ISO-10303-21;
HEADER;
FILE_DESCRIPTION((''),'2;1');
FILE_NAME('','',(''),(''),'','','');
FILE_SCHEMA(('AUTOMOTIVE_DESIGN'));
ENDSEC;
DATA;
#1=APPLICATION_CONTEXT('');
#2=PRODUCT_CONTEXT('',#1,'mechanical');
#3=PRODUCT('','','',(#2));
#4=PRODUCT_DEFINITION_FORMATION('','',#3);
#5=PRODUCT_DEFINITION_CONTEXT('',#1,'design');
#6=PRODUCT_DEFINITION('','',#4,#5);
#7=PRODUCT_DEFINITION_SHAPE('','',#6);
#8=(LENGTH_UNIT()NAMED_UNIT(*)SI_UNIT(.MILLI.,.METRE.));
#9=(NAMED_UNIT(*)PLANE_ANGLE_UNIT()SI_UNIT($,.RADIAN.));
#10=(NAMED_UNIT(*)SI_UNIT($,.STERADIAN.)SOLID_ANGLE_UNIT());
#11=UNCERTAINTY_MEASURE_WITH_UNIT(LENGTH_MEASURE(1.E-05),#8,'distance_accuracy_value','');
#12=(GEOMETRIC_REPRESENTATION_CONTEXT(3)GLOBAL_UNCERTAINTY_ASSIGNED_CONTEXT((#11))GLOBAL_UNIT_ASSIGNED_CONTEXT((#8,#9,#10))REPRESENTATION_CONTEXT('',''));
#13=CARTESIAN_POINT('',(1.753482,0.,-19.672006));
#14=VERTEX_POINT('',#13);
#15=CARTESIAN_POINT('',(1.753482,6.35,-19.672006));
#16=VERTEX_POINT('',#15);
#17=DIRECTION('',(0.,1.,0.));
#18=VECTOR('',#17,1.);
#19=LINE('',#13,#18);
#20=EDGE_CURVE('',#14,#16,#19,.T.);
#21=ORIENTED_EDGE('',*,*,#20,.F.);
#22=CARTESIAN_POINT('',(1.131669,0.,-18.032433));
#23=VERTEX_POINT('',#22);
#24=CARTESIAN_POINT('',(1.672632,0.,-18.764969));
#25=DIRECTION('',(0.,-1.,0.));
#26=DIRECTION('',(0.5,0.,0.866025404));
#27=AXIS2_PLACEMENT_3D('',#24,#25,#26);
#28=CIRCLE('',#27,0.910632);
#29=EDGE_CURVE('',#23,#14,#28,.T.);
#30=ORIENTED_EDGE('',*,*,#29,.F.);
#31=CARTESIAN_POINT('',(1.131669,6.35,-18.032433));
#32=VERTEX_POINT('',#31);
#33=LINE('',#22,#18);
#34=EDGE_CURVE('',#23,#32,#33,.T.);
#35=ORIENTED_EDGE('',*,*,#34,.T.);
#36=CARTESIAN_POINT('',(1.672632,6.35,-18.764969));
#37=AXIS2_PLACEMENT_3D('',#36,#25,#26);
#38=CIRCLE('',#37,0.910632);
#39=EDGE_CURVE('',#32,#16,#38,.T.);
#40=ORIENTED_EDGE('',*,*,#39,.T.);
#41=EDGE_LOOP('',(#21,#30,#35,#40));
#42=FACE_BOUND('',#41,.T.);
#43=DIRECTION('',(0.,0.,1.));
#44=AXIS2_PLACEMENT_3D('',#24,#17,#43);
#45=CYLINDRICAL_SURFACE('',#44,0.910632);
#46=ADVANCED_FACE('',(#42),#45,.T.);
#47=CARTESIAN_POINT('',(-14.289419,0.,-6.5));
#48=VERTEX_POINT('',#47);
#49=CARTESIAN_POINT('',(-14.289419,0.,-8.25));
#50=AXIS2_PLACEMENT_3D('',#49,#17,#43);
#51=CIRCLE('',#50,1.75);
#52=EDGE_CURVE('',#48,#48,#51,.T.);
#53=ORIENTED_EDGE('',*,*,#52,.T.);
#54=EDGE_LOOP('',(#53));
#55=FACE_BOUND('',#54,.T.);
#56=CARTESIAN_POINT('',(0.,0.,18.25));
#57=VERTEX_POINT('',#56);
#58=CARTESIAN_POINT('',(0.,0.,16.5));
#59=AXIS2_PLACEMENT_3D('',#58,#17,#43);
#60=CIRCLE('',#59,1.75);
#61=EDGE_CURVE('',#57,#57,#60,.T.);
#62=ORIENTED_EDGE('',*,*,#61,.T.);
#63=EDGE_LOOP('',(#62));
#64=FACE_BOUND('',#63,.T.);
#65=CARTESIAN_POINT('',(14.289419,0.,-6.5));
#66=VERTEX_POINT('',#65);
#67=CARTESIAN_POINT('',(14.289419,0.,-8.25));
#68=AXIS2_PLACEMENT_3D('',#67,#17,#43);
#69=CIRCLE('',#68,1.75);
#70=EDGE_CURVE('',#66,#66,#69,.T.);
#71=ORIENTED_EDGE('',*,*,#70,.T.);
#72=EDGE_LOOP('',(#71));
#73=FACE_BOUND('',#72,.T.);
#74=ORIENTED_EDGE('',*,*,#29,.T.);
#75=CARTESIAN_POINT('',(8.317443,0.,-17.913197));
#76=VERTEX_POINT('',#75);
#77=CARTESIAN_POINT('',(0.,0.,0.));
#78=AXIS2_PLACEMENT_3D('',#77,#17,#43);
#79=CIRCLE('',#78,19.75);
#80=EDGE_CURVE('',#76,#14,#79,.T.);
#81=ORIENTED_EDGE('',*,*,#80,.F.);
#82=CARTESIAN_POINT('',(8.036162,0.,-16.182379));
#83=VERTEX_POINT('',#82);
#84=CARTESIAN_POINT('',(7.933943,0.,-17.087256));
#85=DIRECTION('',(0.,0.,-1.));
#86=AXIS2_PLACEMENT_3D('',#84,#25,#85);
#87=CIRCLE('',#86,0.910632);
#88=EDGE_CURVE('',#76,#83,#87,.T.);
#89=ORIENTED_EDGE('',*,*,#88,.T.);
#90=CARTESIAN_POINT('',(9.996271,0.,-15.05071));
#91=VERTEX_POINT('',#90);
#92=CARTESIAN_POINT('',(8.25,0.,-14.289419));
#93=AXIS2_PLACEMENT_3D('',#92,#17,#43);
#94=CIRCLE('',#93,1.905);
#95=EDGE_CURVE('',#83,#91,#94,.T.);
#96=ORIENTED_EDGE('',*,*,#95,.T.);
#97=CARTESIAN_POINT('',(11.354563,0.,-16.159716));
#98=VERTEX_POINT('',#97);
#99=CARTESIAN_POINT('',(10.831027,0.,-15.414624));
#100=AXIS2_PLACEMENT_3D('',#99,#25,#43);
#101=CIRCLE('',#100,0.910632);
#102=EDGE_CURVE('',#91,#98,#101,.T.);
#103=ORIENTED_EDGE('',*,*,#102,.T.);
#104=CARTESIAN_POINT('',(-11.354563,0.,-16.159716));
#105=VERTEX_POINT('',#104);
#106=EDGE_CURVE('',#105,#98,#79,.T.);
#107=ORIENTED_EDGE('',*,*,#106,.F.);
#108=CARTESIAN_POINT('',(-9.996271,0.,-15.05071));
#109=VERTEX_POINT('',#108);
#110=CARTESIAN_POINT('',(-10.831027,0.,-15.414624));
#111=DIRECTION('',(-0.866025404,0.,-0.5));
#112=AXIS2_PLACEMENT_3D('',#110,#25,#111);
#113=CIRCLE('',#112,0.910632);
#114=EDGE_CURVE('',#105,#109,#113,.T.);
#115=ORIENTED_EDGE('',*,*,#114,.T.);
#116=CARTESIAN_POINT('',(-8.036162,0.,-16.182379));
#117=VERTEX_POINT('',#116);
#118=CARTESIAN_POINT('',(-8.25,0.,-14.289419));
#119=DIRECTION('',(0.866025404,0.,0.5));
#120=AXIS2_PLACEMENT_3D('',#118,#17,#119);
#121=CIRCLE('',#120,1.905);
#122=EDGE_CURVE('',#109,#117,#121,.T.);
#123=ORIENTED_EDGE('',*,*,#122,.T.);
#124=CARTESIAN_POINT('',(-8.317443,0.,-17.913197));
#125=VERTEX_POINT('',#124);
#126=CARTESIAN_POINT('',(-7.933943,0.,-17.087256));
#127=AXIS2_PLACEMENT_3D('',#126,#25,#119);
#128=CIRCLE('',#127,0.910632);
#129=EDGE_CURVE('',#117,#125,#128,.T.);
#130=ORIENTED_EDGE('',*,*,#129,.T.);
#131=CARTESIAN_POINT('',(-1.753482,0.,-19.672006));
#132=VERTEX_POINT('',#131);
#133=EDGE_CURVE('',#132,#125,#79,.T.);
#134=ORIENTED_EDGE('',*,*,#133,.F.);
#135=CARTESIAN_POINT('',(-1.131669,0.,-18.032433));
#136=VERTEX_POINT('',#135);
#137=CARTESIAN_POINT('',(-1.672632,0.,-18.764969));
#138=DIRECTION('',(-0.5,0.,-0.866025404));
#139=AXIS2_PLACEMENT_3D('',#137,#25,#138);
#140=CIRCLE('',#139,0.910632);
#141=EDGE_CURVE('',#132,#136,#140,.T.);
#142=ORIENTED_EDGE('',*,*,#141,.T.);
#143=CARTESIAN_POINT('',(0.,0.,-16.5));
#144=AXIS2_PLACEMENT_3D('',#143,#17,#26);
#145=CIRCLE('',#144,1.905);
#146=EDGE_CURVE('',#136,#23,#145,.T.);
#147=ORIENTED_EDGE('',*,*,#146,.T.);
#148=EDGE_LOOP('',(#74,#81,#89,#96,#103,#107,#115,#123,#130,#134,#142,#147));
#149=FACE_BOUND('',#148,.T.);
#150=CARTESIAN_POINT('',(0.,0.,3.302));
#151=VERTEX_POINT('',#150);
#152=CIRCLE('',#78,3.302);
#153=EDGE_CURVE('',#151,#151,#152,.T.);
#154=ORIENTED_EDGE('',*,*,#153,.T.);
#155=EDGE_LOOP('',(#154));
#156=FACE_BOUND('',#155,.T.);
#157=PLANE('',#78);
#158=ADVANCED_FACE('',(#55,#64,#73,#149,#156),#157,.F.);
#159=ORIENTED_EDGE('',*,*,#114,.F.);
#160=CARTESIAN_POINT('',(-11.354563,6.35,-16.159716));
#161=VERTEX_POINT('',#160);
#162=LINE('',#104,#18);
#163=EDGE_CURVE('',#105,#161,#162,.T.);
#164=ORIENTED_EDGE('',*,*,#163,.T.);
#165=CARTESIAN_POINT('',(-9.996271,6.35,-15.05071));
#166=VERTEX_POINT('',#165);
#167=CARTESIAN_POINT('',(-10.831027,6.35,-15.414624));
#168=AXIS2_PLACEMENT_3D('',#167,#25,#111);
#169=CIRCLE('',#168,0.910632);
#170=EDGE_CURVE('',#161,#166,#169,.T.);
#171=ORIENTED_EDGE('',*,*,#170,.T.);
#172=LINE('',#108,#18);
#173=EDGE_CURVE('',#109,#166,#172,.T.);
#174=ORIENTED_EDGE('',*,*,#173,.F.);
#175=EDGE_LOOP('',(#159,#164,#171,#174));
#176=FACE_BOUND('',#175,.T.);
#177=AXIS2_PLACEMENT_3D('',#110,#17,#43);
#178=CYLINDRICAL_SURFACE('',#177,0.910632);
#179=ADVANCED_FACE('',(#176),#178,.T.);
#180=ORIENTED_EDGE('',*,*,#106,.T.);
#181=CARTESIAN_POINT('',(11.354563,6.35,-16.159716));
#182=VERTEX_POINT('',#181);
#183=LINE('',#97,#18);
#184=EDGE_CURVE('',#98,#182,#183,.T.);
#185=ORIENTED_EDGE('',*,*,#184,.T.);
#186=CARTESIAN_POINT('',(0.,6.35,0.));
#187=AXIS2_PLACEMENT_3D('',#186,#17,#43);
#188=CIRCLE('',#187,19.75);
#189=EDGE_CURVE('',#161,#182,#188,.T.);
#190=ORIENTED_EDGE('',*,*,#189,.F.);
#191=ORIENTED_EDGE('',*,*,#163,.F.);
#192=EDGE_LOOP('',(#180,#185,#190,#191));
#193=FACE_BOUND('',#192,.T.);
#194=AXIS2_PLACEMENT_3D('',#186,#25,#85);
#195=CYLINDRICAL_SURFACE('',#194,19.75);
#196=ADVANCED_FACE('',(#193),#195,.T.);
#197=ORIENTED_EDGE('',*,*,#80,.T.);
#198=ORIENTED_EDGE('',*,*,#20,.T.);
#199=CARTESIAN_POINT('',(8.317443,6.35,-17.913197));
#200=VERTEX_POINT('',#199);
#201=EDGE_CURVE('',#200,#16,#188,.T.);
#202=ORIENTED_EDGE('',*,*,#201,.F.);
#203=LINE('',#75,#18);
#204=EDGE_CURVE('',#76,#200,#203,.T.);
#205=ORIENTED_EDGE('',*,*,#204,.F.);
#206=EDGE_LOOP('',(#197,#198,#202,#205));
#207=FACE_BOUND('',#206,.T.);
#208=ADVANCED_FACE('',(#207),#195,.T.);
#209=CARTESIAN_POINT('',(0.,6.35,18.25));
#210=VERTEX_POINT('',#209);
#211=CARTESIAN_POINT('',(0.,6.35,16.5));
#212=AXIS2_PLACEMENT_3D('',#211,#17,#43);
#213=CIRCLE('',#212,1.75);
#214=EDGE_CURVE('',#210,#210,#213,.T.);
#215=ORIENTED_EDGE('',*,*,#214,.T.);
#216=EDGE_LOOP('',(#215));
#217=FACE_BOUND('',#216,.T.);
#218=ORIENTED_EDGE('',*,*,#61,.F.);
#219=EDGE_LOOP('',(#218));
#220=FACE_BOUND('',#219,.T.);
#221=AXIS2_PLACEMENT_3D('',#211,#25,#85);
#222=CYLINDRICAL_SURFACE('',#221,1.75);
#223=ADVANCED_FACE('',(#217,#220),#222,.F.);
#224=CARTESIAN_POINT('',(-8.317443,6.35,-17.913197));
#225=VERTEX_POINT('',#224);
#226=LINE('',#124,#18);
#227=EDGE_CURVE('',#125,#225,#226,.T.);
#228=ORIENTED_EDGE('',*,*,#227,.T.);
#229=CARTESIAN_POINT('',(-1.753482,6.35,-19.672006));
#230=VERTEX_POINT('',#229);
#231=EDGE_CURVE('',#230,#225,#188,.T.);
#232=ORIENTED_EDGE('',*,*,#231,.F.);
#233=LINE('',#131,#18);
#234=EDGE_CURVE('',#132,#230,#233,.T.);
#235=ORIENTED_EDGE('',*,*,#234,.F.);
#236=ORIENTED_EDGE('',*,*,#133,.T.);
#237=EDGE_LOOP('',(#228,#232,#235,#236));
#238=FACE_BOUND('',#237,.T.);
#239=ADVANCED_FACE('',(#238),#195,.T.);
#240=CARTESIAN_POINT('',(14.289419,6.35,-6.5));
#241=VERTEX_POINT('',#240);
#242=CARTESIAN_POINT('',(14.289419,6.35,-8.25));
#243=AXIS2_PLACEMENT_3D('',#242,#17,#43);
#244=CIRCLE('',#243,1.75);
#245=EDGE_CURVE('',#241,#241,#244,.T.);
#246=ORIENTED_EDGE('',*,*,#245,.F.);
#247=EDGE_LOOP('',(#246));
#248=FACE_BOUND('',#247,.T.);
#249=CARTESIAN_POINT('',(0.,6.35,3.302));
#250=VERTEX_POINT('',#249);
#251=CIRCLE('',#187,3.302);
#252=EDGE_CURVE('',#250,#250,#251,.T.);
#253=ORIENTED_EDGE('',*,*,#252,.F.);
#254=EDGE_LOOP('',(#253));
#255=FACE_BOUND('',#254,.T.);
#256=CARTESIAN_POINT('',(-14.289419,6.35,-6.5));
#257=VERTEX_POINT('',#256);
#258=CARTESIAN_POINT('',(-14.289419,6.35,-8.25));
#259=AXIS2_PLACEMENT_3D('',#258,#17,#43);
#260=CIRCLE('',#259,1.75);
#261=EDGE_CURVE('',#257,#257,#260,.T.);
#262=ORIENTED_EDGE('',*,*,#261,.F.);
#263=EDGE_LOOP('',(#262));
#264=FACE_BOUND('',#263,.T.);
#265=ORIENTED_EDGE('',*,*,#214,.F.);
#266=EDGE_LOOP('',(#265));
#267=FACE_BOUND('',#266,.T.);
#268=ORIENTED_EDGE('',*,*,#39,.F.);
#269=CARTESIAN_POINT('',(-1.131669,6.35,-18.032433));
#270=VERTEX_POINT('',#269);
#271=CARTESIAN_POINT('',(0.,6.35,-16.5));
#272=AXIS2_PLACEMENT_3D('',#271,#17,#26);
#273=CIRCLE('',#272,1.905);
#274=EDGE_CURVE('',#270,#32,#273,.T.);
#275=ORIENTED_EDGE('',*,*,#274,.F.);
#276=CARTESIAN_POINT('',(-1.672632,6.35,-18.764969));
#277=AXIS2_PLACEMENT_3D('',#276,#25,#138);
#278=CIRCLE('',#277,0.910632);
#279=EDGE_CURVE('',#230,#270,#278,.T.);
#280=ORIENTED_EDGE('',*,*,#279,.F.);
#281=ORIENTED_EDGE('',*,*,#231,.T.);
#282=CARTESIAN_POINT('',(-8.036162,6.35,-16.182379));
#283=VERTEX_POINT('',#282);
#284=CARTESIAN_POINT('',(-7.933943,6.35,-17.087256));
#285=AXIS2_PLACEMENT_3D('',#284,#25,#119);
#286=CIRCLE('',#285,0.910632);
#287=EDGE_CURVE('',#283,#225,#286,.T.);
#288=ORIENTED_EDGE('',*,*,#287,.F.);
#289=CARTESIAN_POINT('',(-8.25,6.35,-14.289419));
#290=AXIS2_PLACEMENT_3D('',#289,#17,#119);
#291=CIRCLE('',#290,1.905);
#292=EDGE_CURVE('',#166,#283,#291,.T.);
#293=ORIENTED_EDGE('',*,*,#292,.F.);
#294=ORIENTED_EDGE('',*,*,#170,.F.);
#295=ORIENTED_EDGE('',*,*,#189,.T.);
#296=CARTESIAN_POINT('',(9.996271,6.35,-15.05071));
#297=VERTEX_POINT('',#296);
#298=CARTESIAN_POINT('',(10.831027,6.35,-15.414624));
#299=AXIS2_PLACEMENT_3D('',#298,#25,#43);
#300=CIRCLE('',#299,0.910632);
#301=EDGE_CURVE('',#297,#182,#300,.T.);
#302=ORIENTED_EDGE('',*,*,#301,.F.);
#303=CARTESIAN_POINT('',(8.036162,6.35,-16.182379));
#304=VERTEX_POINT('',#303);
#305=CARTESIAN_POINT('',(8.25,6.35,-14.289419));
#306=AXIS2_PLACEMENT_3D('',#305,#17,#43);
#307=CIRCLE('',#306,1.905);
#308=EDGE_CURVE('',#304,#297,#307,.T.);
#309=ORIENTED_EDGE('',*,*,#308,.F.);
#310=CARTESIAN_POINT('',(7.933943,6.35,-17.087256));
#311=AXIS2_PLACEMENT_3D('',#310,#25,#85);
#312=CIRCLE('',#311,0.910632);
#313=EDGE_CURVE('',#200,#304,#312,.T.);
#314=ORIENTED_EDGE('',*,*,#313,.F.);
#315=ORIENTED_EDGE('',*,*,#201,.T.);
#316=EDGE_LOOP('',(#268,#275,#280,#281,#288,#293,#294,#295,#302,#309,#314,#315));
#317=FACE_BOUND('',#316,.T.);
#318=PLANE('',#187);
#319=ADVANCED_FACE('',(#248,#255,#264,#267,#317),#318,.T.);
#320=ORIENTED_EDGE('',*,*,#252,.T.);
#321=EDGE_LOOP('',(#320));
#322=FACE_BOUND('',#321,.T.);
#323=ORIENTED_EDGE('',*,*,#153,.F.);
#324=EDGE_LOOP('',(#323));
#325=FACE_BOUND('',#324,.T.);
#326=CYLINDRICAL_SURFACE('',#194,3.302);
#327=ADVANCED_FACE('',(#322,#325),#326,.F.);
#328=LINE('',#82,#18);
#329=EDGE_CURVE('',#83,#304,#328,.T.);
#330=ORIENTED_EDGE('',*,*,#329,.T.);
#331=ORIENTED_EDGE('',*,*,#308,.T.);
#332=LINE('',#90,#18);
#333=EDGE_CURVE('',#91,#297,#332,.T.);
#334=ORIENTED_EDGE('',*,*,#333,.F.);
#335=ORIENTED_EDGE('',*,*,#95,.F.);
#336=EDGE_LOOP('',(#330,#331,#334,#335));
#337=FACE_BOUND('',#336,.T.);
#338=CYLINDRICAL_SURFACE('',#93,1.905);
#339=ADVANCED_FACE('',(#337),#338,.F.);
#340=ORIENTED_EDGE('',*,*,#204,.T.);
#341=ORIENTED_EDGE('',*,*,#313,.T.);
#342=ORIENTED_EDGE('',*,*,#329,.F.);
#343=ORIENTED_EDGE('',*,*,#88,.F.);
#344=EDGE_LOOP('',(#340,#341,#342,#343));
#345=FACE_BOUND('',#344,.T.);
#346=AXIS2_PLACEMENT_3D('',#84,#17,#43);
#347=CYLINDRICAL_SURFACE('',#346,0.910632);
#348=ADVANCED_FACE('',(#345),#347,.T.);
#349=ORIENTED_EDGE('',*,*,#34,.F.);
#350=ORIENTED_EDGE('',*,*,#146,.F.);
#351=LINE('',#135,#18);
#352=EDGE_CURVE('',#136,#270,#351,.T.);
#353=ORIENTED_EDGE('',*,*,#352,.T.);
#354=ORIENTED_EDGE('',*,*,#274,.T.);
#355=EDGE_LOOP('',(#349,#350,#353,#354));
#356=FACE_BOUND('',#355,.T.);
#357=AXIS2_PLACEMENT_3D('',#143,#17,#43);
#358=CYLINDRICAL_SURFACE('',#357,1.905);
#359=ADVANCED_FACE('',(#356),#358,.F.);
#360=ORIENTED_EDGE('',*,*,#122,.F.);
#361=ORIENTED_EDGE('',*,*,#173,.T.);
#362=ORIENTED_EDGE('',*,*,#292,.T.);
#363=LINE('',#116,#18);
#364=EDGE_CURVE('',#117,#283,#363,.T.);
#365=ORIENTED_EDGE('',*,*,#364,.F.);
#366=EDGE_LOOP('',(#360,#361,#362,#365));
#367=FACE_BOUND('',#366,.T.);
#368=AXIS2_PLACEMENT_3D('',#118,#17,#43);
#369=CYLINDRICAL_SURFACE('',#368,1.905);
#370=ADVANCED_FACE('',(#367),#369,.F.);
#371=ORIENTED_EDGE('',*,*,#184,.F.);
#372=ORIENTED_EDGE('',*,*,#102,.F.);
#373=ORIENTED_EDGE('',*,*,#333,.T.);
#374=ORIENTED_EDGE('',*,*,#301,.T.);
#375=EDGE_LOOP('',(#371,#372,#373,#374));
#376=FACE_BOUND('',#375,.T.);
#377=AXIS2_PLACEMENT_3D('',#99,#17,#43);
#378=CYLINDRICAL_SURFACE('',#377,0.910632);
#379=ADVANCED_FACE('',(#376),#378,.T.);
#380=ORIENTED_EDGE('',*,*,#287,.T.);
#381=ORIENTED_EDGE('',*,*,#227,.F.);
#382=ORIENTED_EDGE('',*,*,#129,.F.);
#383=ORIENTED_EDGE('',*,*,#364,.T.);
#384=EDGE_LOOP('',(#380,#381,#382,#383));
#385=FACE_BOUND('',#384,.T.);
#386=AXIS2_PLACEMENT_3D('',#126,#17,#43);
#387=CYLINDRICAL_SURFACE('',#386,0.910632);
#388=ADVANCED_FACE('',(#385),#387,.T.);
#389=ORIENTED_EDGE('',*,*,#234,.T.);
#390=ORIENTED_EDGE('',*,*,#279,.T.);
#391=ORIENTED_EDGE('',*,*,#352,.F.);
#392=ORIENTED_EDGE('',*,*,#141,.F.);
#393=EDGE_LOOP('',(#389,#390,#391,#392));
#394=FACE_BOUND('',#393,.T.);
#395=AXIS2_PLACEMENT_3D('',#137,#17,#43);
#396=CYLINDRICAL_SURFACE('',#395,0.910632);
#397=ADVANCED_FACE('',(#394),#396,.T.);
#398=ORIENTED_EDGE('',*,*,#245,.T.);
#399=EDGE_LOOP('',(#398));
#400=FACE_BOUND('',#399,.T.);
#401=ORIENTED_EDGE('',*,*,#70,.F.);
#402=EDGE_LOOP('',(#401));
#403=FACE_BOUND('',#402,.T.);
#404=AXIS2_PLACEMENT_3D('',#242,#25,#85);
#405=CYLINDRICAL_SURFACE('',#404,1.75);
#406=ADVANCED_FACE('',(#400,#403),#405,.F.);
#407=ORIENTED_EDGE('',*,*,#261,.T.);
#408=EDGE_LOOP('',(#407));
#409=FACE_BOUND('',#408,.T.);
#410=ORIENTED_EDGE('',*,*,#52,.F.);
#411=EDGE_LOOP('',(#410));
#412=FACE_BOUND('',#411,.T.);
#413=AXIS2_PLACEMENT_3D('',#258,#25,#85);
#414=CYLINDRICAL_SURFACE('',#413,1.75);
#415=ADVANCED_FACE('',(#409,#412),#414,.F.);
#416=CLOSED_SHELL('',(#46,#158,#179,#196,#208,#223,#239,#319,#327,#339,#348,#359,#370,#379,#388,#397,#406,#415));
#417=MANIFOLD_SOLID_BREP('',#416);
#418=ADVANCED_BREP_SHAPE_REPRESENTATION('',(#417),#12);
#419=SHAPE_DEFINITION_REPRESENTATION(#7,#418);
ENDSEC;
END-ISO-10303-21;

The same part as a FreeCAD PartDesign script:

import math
import FreeCAD as App
import Part
import Sketcher
Q = App.Units.Quantity

doc = App.newDocument("Part")
body = doc.addObject("PartDesign::Body", "Body")

sketch1 = doc.addObject("Sketcher::SketchObject", "Sketch")
body.addObject(sketch1)
sketch1.AttachmentSupport = (doc.XZ_Plane, [""])
sketch1.MapMode = "FlatFace"
sketch1.addGeometry([
    Part.Circle(App.Vector(0, 0, 0), App.Vector(0, 0, 1), 19.8),
    Part.Circle(App.Vector(-14.3, -8.2, 0), App.Vector(0, 0, 1), 1.8),
    Part.Circle(App.Vector(0, 0, 0), App.Vector(0, 0, 1), 3.3),
    Part.Circle(App.Vector(14.3, -8.2, 0), App.Vector(0, 0, 1), 1.8),
    Part.Circle(App.Vector(0, 16.5, 0), App.Vector(0, 0, 1), 1.8),
], False)
sketch1.addConstraint([
    Sketcher.Constraint("Coincident", 0, 3, -1, 1),
    Sketcher.Constraint("Coincident", 2, 3, -1, 1),
    Sketcher.Constraint("Equal", 1, 3),
    Sketcher.Constraint("Equal", 3, 4),
    Sketcher.Constraint("Symmetric", 1, 3, 3, 3, -2),
    Sketcher.Constraint("PointOnObject", 4, 3, -2),
    Sketcher.Constraint("Diameter", 2, Q("0.26 in")),
    Sketcher.Constraint("Diameter", 0, Q("39.5 mm")),
    Sketcher.Constraint("Diameter", 1, Q("3.5 mm")),
    Sketcher.Constraint("DistanceY", 1, 3, -1, 1, Q("8.25 mm")),
    Sketcher.Constraint("DistanceY", -1, 1, 4, 3, Q("16.5 mm")),
    Sketcher.Constraint("DistanceX", 1, 3, -1, 1, Q("14.289419 mm")),
])
pad1 = doc.addObject("PartDesign::Pad", "Pad")
body.addObject(pad1)
pad1.Profile = sketch1
pad1.Length = Q("0.25 in")
pad1.Reversed = True

sketch2 = doc.addObject("Sketcher::SketchObject", "Sketch001")
body.addObject(sketch2)
sketch2.AttachmentSupport = (doc.XZ_Plane, [""])
sketch2.MapMode = "FlatFace"
sketch2.AttachmentOffset = App.Placement(App.Vector(0, 0, -0.25 * 25.4), App.Rotation())
sketch2.addGeometry([
    Part.ArcOfCircle(Part.Circle(App.Vector(8.2, -14.3, 0), App.Vector(0, 0, 1), 1.9), math.radians(-24), math.radians(264)),
    Part.ArcOfCircle(Part.Circle(App.Vector(10.8, -15.4, 0), App.Vector(0, 0, 1), 0.9), math.radians(156), math.radians(305)),
    Part.ArcOfCircle(Part.Circle(App.Vector(0, 0, 0), App.Vector(0, 0, 1), 19.7), math.radians(-65.09), math.radians(-54.91)),
    Part.ArcOfCircle(Part.Circle(App.Vector(7.9, -17.1, 0), App.Vector(0, 0, 1), 0.9), math.radians(-65), math.radians(84)),
], False)
sketch2.addConstraint([
    Sketcher.Constraint("Tangent", 0, 1, 1, 1),
    Sketcher.Constraint("Tangent", 1, 2, 2, 2),
    Sketcher.Constraint("Tangent", 2, 1, 3, 1),
    Sketcher.Constraint("Tangent", 3, 2, 0, 2),
    Sketcher.Constraint("Coincident", 2, 3, -1, 1),
    Sketcher.Constraint("Equal", 1, 3),
    Sketcher.Constraint("Radius", 0, Q("0.075 in")),
    Sketcher.Constraint("Radius", 2, Q("19.75 mm")),
    Sketcher.Constraint("Radius", 1, Q("0.910632 mm")),
    Sketcher.Constraint("DistanceX", -1, 1, 0, 3, Q("8.25 mm")),
    Sketcher.Constraint("DistanceY", 0, 3, -1, 1, Q("14.289419 mm")),
])
pocket1 = doc.addObject("PartDesign::Pocket", "Pocket")
body.addObject(pocket1)
pocket1.Profile = sketch2
pocket1.Type = "ThroughAll"
pocket1.Reversed = True
doc.recompute()

polarpattern = doc.addObject("PartDesign::PolarPattern", "PolarPattern")
body.addObject(polarpattern)
polarpattern.Originals = [pocket1]
polarpattern.Axis = (doc.Y_Axis, [""])
polarpattern.Angle = 60
polarpattern.Occurrences = 3
body.Tip = polarpattern

doc.recompute()
